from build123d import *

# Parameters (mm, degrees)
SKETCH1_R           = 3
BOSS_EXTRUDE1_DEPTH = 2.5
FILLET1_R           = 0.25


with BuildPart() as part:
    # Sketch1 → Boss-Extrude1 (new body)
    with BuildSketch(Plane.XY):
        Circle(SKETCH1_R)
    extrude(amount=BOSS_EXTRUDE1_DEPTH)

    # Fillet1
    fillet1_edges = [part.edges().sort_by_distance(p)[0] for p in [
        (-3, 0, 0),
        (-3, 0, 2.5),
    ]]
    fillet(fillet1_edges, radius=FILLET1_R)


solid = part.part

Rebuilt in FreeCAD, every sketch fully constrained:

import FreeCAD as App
import Part
import Sketcher
from FreeCAD import Vector


def edges_at(feature, points):
    """Names of the edges that pass closest to the given points."""
    edges = feature.Shape.Edges
    near = lambda p: min(range(len(edges)), key=lambda i: edges[i].distToShape(Part.Vertex(*p))[0])
    return sorted({f"Edge{near(p) + 1}" for p in points})

doc = App.newDocument("Part")
body = doc.addObject("PartDesign::Body", "Body")

sketch1 = body.newObject("Sketcher::SketchObject", "Sketch")
sketch1.AttachmentSupport = (doc.getObject("XY_Plane"), [""])
sketch1.MapMode = "FlatFace"
sketch1.addGeometry(Part.Circle(Vector(0, 0, 0), Vector(0, 0, 1), 3), False)
sketch1.addConstraint(Sketcher.Constraint("Coincident", 0, 3, -1, 1))
sketch1.addConstraint(Sketcher.Constraint("Diameter", 0, 6.0))
pad1 = body.newObject("PartDesign::Pad", "Pad")
pad1.Profile = sketch1
pad1.Length = 2.5
doc.recompute()

fillet = body.newObject("PartDesign::Fillet", "Fillet")
fillet.Base = (pad1, edges_at(pad1, [(-3, 0, 0), (-3, 0, 2.5)]))
fillet.Radius = 0.25

doc.recompute()
